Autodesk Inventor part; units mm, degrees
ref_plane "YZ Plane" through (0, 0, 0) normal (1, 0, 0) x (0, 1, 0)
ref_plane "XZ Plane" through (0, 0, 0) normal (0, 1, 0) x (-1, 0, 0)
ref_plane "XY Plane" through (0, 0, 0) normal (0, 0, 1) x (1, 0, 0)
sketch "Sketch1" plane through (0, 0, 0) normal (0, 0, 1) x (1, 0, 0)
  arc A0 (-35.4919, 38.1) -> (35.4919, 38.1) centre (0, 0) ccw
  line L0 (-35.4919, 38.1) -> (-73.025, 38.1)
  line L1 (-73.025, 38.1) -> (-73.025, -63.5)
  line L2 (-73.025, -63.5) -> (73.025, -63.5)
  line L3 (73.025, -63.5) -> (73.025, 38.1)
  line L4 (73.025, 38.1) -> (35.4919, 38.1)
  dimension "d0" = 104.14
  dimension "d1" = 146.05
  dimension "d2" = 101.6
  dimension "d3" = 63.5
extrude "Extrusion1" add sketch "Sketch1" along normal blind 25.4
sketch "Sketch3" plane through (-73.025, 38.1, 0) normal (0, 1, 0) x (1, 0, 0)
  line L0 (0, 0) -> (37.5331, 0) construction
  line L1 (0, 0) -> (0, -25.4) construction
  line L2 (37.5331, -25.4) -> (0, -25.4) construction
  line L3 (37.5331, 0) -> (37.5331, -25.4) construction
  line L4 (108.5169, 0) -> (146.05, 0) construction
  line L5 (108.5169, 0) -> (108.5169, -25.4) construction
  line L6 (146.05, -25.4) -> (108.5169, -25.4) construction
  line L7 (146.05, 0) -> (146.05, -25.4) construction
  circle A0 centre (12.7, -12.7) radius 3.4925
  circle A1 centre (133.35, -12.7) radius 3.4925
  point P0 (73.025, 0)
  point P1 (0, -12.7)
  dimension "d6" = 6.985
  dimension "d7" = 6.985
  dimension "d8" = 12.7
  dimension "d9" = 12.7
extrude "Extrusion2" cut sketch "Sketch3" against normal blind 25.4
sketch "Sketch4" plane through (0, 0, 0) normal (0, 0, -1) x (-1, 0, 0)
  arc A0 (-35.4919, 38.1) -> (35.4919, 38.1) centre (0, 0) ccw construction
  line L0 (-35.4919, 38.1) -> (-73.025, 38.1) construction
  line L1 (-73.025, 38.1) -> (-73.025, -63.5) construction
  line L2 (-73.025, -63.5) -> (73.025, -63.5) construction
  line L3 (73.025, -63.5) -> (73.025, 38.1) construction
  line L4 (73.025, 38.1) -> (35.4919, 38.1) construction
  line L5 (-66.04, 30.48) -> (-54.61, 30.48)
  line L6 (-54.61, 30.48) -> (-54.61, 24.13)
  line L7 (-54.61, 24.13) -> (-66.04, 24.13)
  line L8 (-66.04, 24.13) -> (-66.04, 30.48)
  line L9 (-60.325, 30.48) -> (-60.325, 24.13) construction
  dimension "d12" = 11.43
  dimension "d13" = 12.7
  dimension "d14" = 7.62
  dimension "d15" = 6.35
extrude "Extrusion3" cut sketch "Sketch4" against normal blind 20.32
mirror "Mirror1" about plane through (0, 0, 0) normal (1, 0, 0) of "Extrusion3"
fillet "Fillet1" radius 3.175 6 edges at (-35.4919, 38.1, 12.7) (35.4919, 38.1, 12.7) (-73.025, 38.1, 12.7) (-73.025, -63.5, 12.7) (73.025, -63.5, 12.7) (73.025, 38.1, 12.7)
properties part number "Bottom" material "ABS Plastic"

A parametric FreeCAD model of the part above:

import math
import FreeCAD as App
import Part
import Sketcher
Q = App.Units.Quantity


def edges_at(feature, points):
    """Names of the edges that pass closest to the given points."""
    edges = feature.Shape.Edges
    near = lambda p: min(range(len(edges)), key=lambda i: edges[i].distToShape(Part.Vertex(*p))[0])
    return sorted({f"Edge{near(p) + 1}" for p in points})


def add_polygon(sketch, points):
    """Adds a closed chain of lines whose ends are joined by coincident constraints."""
    first, n = sketch.GeometryCount, len(points)
    for a, b in zip(points, points[1:] + points[:1]):
        sketch.addGeometry(Part.LineSegment(App.Vector(*a, 0), App.Vector(*b, 0)), False)
    for i in range(n):
        sketch.addConstraint(Sketcher.Constraint("Coincident", first + i, 2, first + (i + 1) % n, 1))

doc = App.newDocument("Part")
body = doc.addObject("PartDesign::Body", "Body")

sketch1 = body.newObject("Sketcher::SketchObject", "Sketch")
sketch1.AttachmentSupport = (doc.getObject("XY_Plane"), [""])
sketch1.MapMode = "FlatFace"
sketch1.addGeometry(Part.ArcOfCircle(Part.Circle(App.Vector(0, 0, 0), App.Vector(0, 0, 1), 52), math.radians(133), math.radians(407)), False)
sketch1.addGeometry(Part.LineSegment(App.Vector(-35, 38, 0), App.Vector(-73, 38, 0)), False)
sketch1.addGeometry(Part.LineSegment(App.Vector(-73, 38, 0), App.Vector(-73, -64, 0)), False)
sketch1.addGeometry(Part.LineSegment(App.Vector(-73, -64, 0), App.Vector(73, -64, 0)), False)
sketch1.addGeometry(Part.LineSegment(App.Vector(73, -64, 0), App.Vector(73, 38, 0)), False)
sketch1.addGeometry(Part.LineSegment(App.Vector(73, 38, 0), App.Vector(35, 38, 0)), False)
sketch1.addConstraint(Sketcher.Constraint("Coincident", 0, 1, 1, 1))
sketch1.addConstraint(Sketcher.Constraint("Coincident", 1, 2, 2, 1))
sketch1.addConstraint(Sketcher.Constraint("Coincident", 2, 2, 3, 1))
sketch1.addConstraint(Sketcher.Constraint("Coincident", 3, 2, 4, 1))
sketch1.addConstraint(Sketcher.Constraint("Coincident", 4, 2, 5, 1))
sketch1.addConstraint(Sketcher.Constraint("Coincident", 5, 2, 0, 2))
sketch1.addConstraint(Sketcher.Constraint("Horizontal", 1))
sketch1.addConstraint(Sketcher.Constraint("Vertical", 2))
sketch1.addConstraint(Sketcher.Constraint("Horizontal", 3))
sketch1.addConstraint(Sketcher.Constraint("Vertical", 4))
sketch1.addConstraint(Sketcher.Constraint("Horizontal", 5))
sketch1.addConstraint(Sketcher.Constraint("Coincident", 0, 3, -1, 1))
sketch1.addConstraint(Sketcher.Constraint("Symmetric", 1, 2, 4, 2, -2))
sketch1.addConstraint(Sketcher.Constraint("DistanceY", 2, 2, 2, 1, Q("4 in")))
sketch1.addConstraint(Sketcher.Constraint("Radius", 0, Q("2.05 in")))
sketch1.addConstraint(Sketcher.Constraint("DistanceX", 3, 1, 3, 2, Q("5.75 in")))
sketch1.addConstraint(Sketcher.Constraint("DistanceY", 2, 2, -1, 1, Q("2.5 in")))
pad1 = body.newObject("PartDesign::Pad", "Pad")
pad1.Profile = sketch1
pad1.Length = Q("1 in")

sketch2 = body.newObject("Sketcher::SketchObject", "Sketch001")
sketch2.AttachmentSupport = (doc.getObject("XZ_Plane"), [""])
sketch2.MapMode = "FlatFace"
sketch2.AttachmentOffset = App.Placement(App.Vector(0, 0, -1.5 * 25.4), App.Rotation())
sketch2.addGeometry(Part.Circle(App.Vector(-60.3, 12.7, 0), App.Vector(0, 0, 1), 3.5), False)
sketch2.addGeometry(Part.Circle(App.Vector(60.3, 12.7, 0), App.Vector(0, 0, 1), 3.5), False)
sketch2.addConstraint(Sketcher.Constraint("Equal", 0, 1))
sketch2.addConstraint(Sketcher.Constraint("Symmetric", 0, 3, 1, 3, -2))
sketch2.addConstraint(Sketcher.Constraint("Diameter", 0, Q("0.275 in")))
sketch2.addConstraint(Sketcher.Constraint("DistanceY", -1, 1, 0, 3, Q("0.5 in")))
sketch2.addConstraint(Sketcher.Constraint("DistanceX", 0, 3, 1, 3, Q("4.75 in")))
pocket1 = body.newObject("PartDesign::Pocket", "Pocket")
pocket1.Profile = sketch2
pocket1.Length = Q("1 in")
pocket1.Reversed = True

sketch3 = body.newObject("Sketcher::SketchObject", "Sketch002")
sketch3.AttachmentSupport = (doc.getObject("XY_Plane"), [""])
sketch3.MapMode = "FlatFace"
add_polygon(sketch3, [(55, 30), (66, 30), (66, 24), (55, 24)])
sketch3.addConstraint(Sketcher.Constraint("Horizontal", 0))
sketch3.addConstraint(Sketcher.Constraint("Vertical", 1))
sketch3.addConstraint(Sketcher.Constraint("Horizontal", 2))
sketch3.addConstraint(Sketcher.Constraint("Vertical", 3))
sketch3.addConstraint(Sketcher.Constraint("DistanceX", 0, 1, 0, 2, Q("0.45 in")))
sketch3.addConstraint(Sketcher.Constraint("DistanceY", 1, 2, 1, 1, Q("0.25 in")))
sketch3.addConstraint(Sketcher.Constraint("DistanceX", -1, 1, 0, 2, Q("2.6 in")))
sketch3.addConstraint(Sketcher.Constraint("DistanceY", -1, 1, 0, 2, Q("1.2 in")))
pocket2 = body.newObject("PartDesign::Pocket", "Pocket001")
pocket2.Profile = sketch3
pocket2.Length = Q("0.8 in")
pocket2.Reversed = True
doc.recompute()

mirrored = body.newObject("PartDesign::Mirrored", "Mirrored")
mirrored.Originals = [pocket2]
mirrored.MirrorPlane = (doc.getObject("YZ_Plane"), [""])
body.Tip = mirrored
doc.recompute()

fillet = body.newObject("PartDesign::Fillet", "Fillet")
fillet.Base = (mirrored, edges_at(mirrored, [
    (-35.492, 38.1, 12.7),
    (35.492, 38.1, 12.7),
    (-73.025, 38.1, 12.7),
    (-73.025, -63.5, 12.7),
    (73.025, -63.5, 12.7),
    (73.025, 38.1, 12.7),
]))
fillet.Radius = Q("0.125 in")

doc.recompute()
